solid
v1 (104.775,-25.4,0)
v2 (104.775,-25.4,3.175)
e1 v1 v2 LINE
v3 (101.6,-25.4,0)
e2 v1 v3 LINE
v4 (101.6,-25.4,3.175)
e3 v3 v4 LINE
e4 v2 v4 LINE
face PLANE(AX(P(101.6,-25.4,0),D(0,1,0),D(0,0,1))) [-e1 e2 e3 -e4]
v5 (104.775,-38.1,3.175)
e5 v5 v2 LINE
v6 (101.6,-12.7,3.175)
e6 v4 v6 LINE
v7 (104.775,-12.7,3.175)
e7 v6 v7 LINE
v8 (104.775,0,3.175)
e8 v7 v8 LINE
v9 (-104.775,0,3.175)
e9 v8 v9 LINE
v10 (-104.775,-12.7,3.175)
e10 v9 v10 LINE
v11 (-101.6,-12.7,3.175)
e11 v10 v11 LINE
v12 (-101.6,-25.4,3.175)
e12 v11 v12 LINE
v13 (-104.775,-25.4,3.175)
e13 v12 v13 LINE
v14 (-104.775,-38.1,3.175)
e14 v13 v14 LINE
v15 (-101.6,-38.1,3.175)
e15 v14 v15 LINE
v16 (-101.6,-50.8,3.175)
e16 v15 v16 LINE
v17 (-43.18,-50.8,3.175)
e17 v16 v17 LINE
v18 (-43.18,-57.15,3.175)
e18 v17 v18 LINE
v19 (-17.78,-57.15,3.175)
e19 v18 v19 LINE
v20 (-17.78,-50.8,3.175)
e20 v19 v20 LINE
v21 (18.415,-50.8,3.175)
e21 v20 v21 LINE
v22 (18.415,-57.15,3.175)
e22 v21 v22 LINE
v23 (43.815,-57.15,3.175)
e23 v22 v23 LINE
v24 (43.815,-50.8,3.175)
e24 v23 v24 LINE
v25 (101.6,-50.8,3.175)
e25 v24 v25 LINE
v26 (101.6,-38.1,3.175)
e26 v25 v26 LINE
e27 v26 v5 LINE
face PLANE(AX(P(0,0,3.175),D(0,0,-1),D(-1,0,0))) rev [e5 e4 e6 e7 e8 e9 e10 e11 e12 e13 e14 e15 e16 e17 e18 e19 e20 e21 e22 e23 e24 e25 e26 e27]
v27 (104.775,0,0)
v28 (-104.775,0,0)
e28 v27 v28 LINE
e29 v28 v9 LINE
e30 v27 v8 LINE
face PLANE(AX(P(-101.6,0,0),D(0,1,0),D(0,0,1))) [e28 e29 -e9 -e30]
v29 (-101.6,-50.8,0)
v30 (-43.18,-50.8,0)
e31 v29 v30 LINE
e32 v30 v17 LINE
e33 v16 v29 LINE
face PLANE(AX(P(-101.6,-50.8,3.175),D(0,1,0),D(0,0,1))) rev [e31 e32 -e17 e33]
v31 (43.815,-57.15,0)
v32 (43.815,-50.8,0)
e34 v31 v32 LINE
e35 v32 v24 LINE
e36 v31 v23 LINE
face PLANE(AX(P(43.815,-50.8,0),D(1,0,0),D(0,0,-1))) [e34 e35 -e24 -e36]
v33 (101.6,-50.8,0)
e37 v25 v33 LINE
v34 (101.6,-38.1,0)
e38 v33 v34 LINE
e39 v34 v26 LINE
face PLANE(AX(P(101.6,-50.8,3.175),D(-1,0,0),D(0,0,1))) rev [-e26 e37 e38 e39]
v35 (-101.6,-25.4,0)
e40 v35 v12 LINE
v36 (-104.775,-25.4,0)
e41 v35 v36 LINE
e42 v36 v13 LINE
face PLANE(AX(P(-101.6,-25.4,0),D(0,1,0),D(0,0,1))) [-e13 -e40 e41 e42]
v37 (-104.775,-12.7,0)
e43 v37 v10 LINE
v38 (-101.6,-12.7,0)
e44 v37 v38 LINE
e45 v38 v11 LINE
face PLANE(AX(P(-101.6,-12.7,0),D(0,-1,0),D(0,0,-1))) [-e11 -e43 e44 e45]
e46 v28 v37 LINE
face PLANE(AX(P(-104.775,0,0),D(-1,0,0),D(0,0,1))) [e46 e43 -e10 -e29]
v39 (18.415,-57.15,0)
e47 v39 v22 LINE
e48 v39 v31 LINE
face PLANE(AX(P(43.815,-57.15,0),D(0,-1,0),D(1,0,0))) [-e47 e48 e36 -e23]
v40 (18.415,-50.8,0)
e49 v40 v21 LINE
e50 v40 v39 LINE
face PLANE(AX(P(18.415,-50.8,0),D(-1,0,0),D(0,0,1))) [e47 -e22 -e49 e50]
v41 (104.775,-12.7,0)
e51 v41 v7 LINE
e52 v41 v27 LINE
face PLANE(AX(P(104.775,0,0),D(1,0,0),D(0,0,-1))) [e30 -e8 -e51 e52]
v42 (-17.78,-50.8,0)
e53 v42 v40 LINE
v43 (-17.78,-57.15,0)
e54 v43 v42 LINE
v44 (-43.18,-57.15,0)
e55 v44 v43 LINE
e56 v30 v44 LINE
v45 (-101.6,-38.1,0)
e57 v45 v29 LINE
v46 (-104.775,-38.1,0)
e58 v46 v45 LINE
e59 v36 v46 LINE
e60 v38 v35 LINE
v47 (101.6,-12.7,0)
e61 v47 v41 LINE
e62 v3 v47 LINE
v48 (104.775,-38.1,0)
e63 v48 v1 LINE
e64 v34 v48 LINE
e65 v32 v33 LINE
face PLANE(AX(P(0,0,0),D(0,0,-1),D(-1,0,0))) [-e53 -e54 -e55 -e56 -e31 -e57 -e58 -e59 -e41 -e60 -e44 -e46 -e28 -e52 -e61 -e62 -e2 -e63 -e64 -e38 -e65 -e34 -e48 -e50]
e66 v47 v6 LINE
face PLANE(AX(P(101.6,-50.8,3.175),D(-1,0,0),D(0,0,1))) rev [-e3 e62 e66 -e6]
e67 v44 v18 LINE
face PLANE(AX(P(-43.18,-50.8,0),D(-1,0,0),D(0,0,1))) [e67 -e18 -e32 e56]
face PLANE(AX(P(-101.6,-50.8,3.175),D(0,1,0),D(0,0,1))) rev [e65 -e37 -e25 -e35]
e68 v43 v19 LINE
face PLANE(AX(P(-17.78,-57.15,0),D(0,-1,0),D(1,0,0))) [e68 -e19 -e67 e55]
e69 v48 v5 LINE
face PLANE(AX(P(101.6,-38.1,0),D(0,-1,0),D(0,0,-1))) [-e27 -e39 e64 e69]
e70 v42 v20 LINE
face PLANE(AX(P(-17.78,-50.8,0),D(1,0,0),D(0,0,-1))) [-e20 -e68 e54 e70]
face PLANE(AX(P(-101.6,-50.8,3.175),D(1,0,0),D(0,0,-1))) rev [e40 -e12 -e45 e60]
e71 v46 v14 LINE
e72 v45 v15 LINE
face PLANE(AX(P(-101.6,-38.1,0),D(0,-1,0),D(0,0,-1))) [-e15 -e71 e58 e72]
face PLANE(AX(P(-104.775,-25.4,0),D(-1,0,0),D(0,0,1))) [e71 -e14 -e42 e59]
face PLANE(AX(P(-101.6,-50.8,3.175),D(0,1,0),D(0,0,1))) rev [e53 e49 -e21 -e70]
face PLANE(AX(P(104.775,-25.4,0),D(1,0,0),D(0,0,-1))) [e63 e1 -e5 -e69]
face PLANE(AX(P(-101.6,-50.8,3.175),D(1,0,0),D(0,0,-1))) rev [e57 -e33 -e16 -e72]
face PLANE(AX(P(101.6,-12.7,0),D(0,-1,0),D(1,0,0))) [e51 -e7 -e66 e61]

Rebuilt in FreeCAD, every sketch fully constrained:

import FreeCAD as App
import Part
import Sketcher
from FreeCAD import Vector
Q = App.Units.Quantity


def add_polygon(sketch, points):
    """Adds a closed chain of lines whose ends are joined by coincident constraints."""
    first, n = sketch.GeometryCount, len(points)
    for a, b in zip(points, points[1:] + points[:1]):
        sketch.addGeometry(Part.LineSegment(App.Vector(*a, 0), App.Vector(*b, 0)), False)
    for i in range(n):
        sketch.addConstraint(Sketcher.Constraint("Coincident", first + i, 2, first + (i + 1) % n, 1))

doc = App.newDocument("Part")
params = doc.addObject("Spreadsheet::Sheet", "Params")
for row, (alias, value) in enumerate([
    ("sketch1_width", "8 in"),
    ("sketch1_height", "4 in"),
    ("pad1_length", "0.125 in"),
    ("sketch2_width", "1 in"),
    ("sketch2_height", "0.5 in"),
    ("sketch2_height2", "0.25 in"),
    ("sketch2_width2", "0.125 in"),
    ("pad2_length", "0.125 in"),
    ("sketch3_width", "1 in"),
    ("sketch3_height", "0.25 in"),
], start=1):
    params.set(f"A{row}", alias)
    params.set(f"B{row}", "=" + value)
    params.setAlias(f"B{row}", alias)

body = doc.addObject("PartDesign::Body", "Body")

# Sketch on XY plane
sketch1 = doc.addObject("Sketcher::SketchObject", "Sketch")
body.addObject(sketch1)
sketch1.AttachmentSupport = (doc.XY_Plane, [""])
sketch1.MapMode = "FlatFace"
add_polygon(sketch1, [(-102, 51), (-102, -51), (102, -51), (102, 51)])  # lines 0-3
sketch1.addConstraint(Sketcher.Constraint("Vertical", 0))
sketch1.addConstraint(Sketcher.Constraint("Horizontal", 1))
sketch1.addConstraint(Sketcher.Constraint("Vertical", 2))
sketch1.addConstraint(Sketcher.Constraint("Horizontal", 3))
sketch1.addConstraint(Sketcher.Constraint("Symmetric", 0, 2, 2, 2, -1, 1))
sketch1.addConstraint(Sketcher.Constraint("DistanceX", 1, 1, 1, 2, Q("8 in")))
sketch1.addConstraint(Sketcher.Constraint("DistanceY", 0, 2, 0, 1, Q("4 in")))
sketch1.setExpression("Constraints[9]", "Params.sketch1_width")
sketch1.setExpression("Constraints[10]", "Params.sketch1_height")
pad1 = doc.addObject("PartDesign::Pad", "Pad")
body.addObject(pad1)
pad1.Profile = sketch1
pad1.setExpression("Length", "Params.pad1_length")

# Sketch on XY plane
sketch2 = doc.addObject("Sketcher::SketchObject", "Sketch001")
body.addObject(sketch2)
sketch2.AttachmentSupport = (doc.XY_Plane, [""])
sketch2.MapMode = "FlatFace"
sketch2.AttachmentOffset = App.Placement(Vector(0, 0, 0.125 * 25.4), App.Rotation())
add_polygon(sketch2, [(-104.8, 25.4), (-104.8, 12.7), (-101.6, 12.7), (-101.6, 25.4)])  # lines 0-3
add_polygon(sketch2, [(-104.8, 50.8), (-104.8, 38.1), (-101.6, 38.1), (-101.6, 50.8)])  # lines 4-7
add_polygon(sketch2, [(-104.8, 0), (-104.8, -12.7), (-101.6, -12.7), (-101.6, 0)])  # lines 8-11
add_polygon(sketch2, [(-104.8, -25.4), (-104.8, -38.1), (-101.6, -38.1), (-101.6, -25.4)])  # lines 12-15
add_polygon(sketch2, [(-104.8, -50.8), (-104.8, -57.1), (-79.4, -57.1), (-79.4, -50.8)])  # lines 16-19
add_polygon(sketch2, [(-43.2, -50.8), (-43.2, -57.1), (-17.8, -57.1), (-17.8, -50.8)])  # lines 20-23
add_polygon(sketch2, [(18.4, -50.8), (18.4, -57.1), (43.8, -57.1), (43.8, -50.8)])  # lines 24-27
add_polygon(sketch2, [(80, -50.8), (80, -57.1), (105.4, -57.1), (105.4, -50.8)])  # lines 28-31
add_polygon(sketch2, [(101.6, -25.4), (101.6, -38.1), (104.8, -38.1), (104.8, -25.4)])  # lines 32-35
add_polygon(sketch2, [(101.6, 0), (101.6, -12.7), (104.8, -12.7), (104.8, 0)])  # lines 36-39
add_polygon(sketch2, [(101.6, 25.4), (101.6, 12.7), (104.8, 12.7), (104.8, 25.4)])  # lines 40-43
add_polygon(sketch2, [(101.6, 50.8), (101.6, 38.1), (104.8, 38.1), (104.8, 50.8)])  # lines 44-47
sketch2.addConstraint(Sketcher.Constraint("Vertical", 0))
sketch2.addConstraint(Sketcher.Constraint("Horizontal", 1))
sketch2.addConstraint(Sketcher.Constraint("Vertical", 2))
sketch2.addConstraint(Sketcher.Constraint("Horizontal", 3))
sketch2.addConstraint(Sketcher.Constraint("Vertical", 4))
sketch2.addConstraint(Sketcher.Constraint("Horizontal", 5))
sketch2.addConstraint(Sketcher.Constraint("Vertical", 6))
sketch2.addConstraint(Sketcher.Constraint("Horizontal", 7))
sketch2.addConstraint(Sketcher.Constraint("Vertical", 8))
sketch2.addConstraint(Sketcher.Constraint("Horizontal", 9))
sketch2.addConstraint(Sketcher.Constraint("Vertical", 10))
sketch2.addConstraint(Sketcher.Constraint("Horizontal", 11))
sketch2.addConstraint(Sketcher.Constraint("Vertical", 12))
sketch2.addConstraint(Sketcher.Constraint("Horizontal", 13))
sketch2.addConstraint(Sketcher.Constraint("Vertical", 14))
sketch2.addConstraint(Sketcher.Constraint("Horizontal", 15))
sketch2.addConstraint(Sketcher.Constraint("Vertical", 16))
sketch2.addConstraint(Sketcher.Constraint("Horizontal", 17))
sketch2.addConstraint(Sketcher.Constraint("Vertical", 18))
sketch2.addConstraint(Sketcher.Constraint("Horizontal", 19))
sketch2.addConstraint(Sketcher.Constraint("Vertical", 20))
sketch2.addConstraint(Sketcher.Constraint("Horizontal", 21))
sketch2.addConstraint(Sketcher.Constraint("Vertical", 22))
sketch2.addConstraint(Sketcher.Constraint("Horizontal", 23))
sketch2.addConstraint(Sketcher.Constraint("Vertical", 24))
sketch2.addConstraint(Sketcher.Constraint("Horizontal", 25))
sketch2.addConstraint(Sketcher.Constraint("Vertical", 26))
sketch2.addConstraint(Sketcher.Constraint("Horizontal", 27))
sketch2.addConstraint(Sketcher.Constraint("Vertical", 28))
sketch2.addConstraint(Sketcher.Constraint("Horizontal", 29))
sketch2.addConstraint(Sketcher.Constraint("Vertical", 30))
sketch2.addConstraint(Sketcher.Constraint("Horizontal", 31))
sketch2.addConstraint(Sketcher.Constraint("Vertical", 32))
sketch2.addConstraint(Sketcher.Constraint("Horizontal", 33))
sketch2.addConstraint(Sketcher.Constraint("Vertical", 34))
sketch2.addConstraint(Sketcher.Constraint("Horizontal", 35))
sketch2.addConstraint(Sketcher.Constraint("Vertical", 36))
sketch2.addConstraint(Sketcher.Constraint("Horizontal", 37))
sketch2.addConstraint(Sketcher.Constraint("Vertical", 38))
sketch2.addConstraint(Sketcher.Constraint("Horizontal", 39))
sketch2.addConstraint(Sketcher.Constraint("Vertical", 40))
sketch2.addConstraint(Sketcher.Constraint("Horizontal", 41))
sketch2.addConstraint(Sketcher.Constraint("Vertical", 42))
sketch2.addConstraint(Sketcher.Constraint("Horizontal", 43))
sketch2.addConstraint(Sketcher.Constraint("Vertical", 44))
sketch2.addConstraint(Sketcher.Constraint("Horizontal", 45))
sketch2.addConstraint(Sketcher.Constraint("Vertical", 46))
sketch2.addConstraint(Sketcher.Constraint("Horizontal", 47))
sketch2.addConstraint(Sketcher.Constraint("Symmetric", 5, 2, 32, 2, -1, 1))
sketch2.addConstraint(Sketcher.Constraint("Symmetric", 3, 2, 34, 2, -1, 1))
sketch2.addConstraint(Sketcher.Constraint("Symmetric", 1, 2, 36, 2, -1, 1))
sketch2.addConstraint(Sketcher.Constraint("Symmetric", 11, 2, 38, 2, -1, 1))
sketch2.addConstraint(Sketcher.Constraint("Symmetric", 9, 2, 40, 2, -1, 1))
sketch2.addConstraint(Sketcher.Constraint("Symmetric", 15, 2, 42, 2, -1, 1))
sketch2.addConstraint(Sketcher.Constraint("Symmetric", 13, 2, 44, 2, -1, 1))
sketch2.addConstraint(Sketcher.Constraint("Symmetric", 19, 2, 46, 2, -1, 1))
sketch2.addConstraint(Sketcher.Constraint("Symmetric", 13, 2, 32, 2, -2))
sketch2.addConstraint(Sketcher.Constraint("Symmetric", 15, 2, 34, 2, -2))
sketch2.addConstraint(Sketcher.Constraint("Symmetric", 9, 2, 36, 2, -2))
sketch2.addConstraint(Sketcher.Constraint("Symmetric", 7, 2, 46, 2, -2))
sketch2.addConstraint(Sketcher.Constraint("PointOnObject", 10, 2, -1))
sketch2.addConstraint(Sketcher.Constraint("Horizontal", 17, 2, 20, 2))
sketch2.addConstraint(Sketcher.Constraint("Horizontal", 19, 2, 22, 2))
sketch2.addConstraint(Sketcher.Constraint("Horizontal", 21, 2, 24, 2))
sketch2.addConstraint(Sketcher.Constraint("Horizontal", 23, 2, 26, 2))
sketch2.addConstraint(Sketcher.Constraint("Horizontal", 25, 2, 28, 2))
sketch2.addConstraint(Sketcher.Constraint("Horizontal", 27, 2, 30, 2))
sketch2.addConstraint(Sketcher.Constraint("Vertical", 3, 2, 4, 2))
sketch2.addConstraint(Sketcher.Constraint("Vertical", 2, 2, 5, 2))
sketch2.addConstraint(Sketcher.Constraint("Vertical", 7, 2, 8, 2))
sketch2.addConstraint(Sketcher.Constraint("Equal", 19, 21))
sketch2.addConstraint(Sketcher.Constraint("Equal", 23, 25))
sketch2.addConstraint(Sketcher.Constraint("Equal", 27, 29))
sketch2.addConstraint(Sketcher.Constraint("Equal", 2, 4))
sketch2.addConstraint(Sketcher.Constraint("Equal", 6, 8))
sketch2.addConstraint(Sketcher.Constraint("Equal", 10, 12))
sketch2.addConstraint(Sketcher.Constraint("DistanceX", 17, 1, 17, 2, Q("1 in")))
sketch2.addConstraint(Sketcher.Constraint("DistanceY", 0, 2, 0, 1, Q("0.5 in")))
sketch2.addConstraint(Sketcher.Constraint("DistanceX", 1, 2, -1, 1, Q("4 in")))
sketch2.addConstraint(Sketcher.Constraint("DistanceY", 16, 2, 16, 1, Q("0.25 in")))
sketch2.addConstraint(Sketcher.Constraint("DistanceX", 20, 2, -1, 1, Q("1.7 in")))
sketch2.addConstraint(Sketcher.Constraint("DistanceX", 1, 1, 1, 2, Q("0.125 in")))
sketch2.addConstraint(Sketcher.Constraint("DistanceX", -1, 1, 28, 2, Q("3.15 in")))
sketch2.addConstraint(Sketcher.Constraint("DistanceX", 17, 2, 24, 2, Q("3.85 in")))
sketch2.setExpression("Constraints[124]", "Params.sketch2_width")
sketch2.setExpression("Constraints[125]", "Params.sketch2_height")
sketch2.setExpression("Constraints[127]", "Params.sketch2_height2")
sketch2.setExpression("Constraints[129]", "Params.sketch2_width2")
pad2 = doc.addObject("PartDesign::Pad", "Pad001")
body.addObject(pad2)
pad2.Profile = sketch2
pad2.setExpression("Length", "Params.pad2_length")
pad2.Reversed = True

# Sketch on XY plane
sketch3 = doc.addObject("Sketcher::SketchObject", "Sketch002")
body.addObject(sketch3)
sketch3.AttachmentSupport = (doc.XY_Plane, [""])
sketch3.MapMode = "FlatFace"
sketch3.AttachmentOffset = App.Placement(Vector(0, 0, 0.125 * 25.4), App.Rotation())
add_polygon(sketch3, [(-105, -51), (-105, -57), (-79, -57), (-79, -51)])  # lines 0-3
add_polygon(sketch3, [(80, -51), (80, -57), (105, -57), (105, -51)])  # lines 4-7
sketch3.addConstraint(Sketcher.Constraint("Vertical", 0))
sketch3.addConstraint(Sketcher.Constraint("Horizontal", 1))
sketch3.addConstraint(Sketcher.Constraint("Vertical", 2))
sketch3.addConstraint(Sketcher.Constraint("Horizontal", 3))
sketch3.addConstraint(Sketcher.Constraint("Vertical", 4))
sketch3.addConstraint(Sketcher.Constraint("Horizontal", 5))
sketch3.addConstraint(Sketcher.Constraint("Vertical", 6))
sketch3.addConstraint(Sketcher.Constraint("Horizontal", 7))
sketch3.addConstraint(Sketcher.Constraint("Horizontal", 1, 2, 4, 2))
sketch3.addConstraint(Sketcher.Constraint("Horizontal", 3, 2, 6, 2))
sketch3.addConstraint(Sketcher.Constraint("Equal", 3, 5))
sketch3.addConstraint(Sketcher.Constraint("DistanceX", 1, 1, 1, 2, Q("1 in")))
sketch3.addConstraint(Sketcher.Constraint("DistanceY", 2, 2, -1, 1, Q("2 in")))
sketch3.addConstraint(Sketcher.Constraint("DistanceY", 0, 2, 0, 1, Q("0.25 in")))
sketch3.addConstraint(Sketcher.Constraint("DistanceX", -1, 1, 4, 2, Q("3.15 in")))
sketch3.addConstraint(Sketcher.Constraint("DistanceX", 0, 2, -1, 1, Q("4.125 in")))
sketch3.setExpression("Constraints[19]", "Params.sketch3_width")
sketch3.setExpression("Constraints[21]", "Params.sketch3_height")
pocket1 = doc.addObject("PartDesign::Pocket", "Pocket")
body.addObject(pocket1)
pocket1.Profile = sketch3
pocket1.Type = "ThroughAll"

# Sketch on XY plane
sketch4 = doc.addObject("Sketcher::SketchObject", "Sketch003")
body.addObject(sketch4)
sketch4.AttachmentSupport = (doc.XY_Plane, [""])
sketch4.MapMode = "FlatFace"
sketch4.AttachmentOffset = App.Placement(Vector(0, 0, 0.125 * 25.4), App.Rotation())
add_polygon(sketch4, [(-131, 66), (-131, 0), (115, 0), (115, 66)])  # lines 0-3
sketch4.addConstraint(Sketcher.Constraint("Vertical", 0))
sketch4.addConstraint(Sketcher.Constraint("Horizontal", 1))
sketch4.addConstraint(Sketcher.Constraint("Vertical", 2))
sketch4.addConstraint(Sketcher.Constraint("Horizontal", 3))
sketch4.addConstraint(Sketcher.Constraint("PointOnObject", 0, 2, -1))
sketch4.addConstraint(Sketcher.Constraint("DistanceX", 1, 1, 1, 2, 245.47503))
sketch4.addConstraint(Sketcher.Constraint("DistanceY", 0, 2, 0, 1, 66.468197))
sketch4.addConstraint(Sketcher.Constraint("DistanceX", 0, 2, -1, 1, 130.83957))
pocket2 = doc.addObject("PartDesign::Pocket", "Pocket001")
body.addObject(pocket2)
pocket2.Profile = sketch4
pocket2.Type = "ThroughAll"

doc.recompute()
